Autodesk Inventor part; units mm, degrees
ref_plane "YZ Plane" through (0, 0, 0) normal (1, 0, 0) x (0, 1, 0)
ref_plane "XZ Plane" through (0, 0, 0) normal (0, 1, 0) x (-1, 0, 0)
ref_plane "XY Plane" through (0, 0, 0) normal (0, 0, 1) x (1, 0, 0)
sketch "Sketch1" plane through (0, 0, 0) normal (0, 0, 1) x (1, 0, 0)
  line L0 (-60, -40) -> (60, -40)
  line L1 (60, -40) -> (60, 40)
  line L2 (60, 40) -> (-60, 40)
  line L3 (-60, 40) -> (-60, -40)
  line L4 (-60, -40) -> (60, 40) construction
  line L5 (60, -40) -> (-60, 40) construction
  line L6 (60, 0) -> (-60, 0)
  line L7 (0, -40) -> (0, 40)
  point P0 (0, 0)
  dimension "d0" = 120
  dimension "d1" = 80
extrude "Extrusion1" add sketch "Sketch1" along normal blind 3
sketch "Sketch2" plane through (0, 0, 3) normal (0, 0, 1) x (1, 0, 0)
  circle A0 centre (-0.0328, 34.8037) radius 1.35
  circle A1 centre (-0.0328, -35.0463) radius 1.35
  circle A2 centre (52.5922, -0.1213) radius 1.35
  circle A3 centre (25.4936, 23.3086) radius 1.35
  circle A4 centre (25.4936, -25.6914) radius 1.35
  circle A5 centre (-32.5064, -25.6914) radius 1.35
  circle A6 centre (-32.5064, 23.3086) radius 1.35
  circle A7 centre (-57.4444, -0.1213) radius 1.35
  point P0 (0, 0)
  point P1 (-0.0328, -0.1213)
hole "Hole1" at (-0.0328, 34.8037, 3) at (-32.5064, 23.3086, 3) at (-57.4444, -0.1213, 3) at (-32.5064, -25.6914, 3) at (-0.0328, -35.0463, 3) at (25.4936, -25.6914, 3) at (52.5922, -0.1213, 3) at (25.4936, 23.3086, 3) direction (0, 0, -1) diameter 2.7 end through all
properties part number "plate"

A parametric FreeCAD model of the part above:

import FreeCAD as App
import Part
import Sketcher
Q = App.Units.Quantity


def add_polygon(sketch, points):
    """Adds a closed chain of lines whose ends are joined by coincident constraints."""
    first, n = sketch.GeometryCount, len(points)
    for a, b in zip(points, points[1:] + points[:1]):
        sketch.addGeometry(Part.LineSegment(App.Vector(*a, 0), App.Vector(*b, 0)), False)
    for i in range(n):
        sketch.addConstraint(Sketcher.Constraint("Coincident", first + i, 2, first + (i + 1) % n, 1))

doc = App.newDocument("Part")
body = doc.addObject("PartDesign::Body", "Body")

# Sketch on XY plane
sketch1 = body.newObject("Sketcher::SketchObject", "Sketch")
sketch1.AttachmentSupport = (doc.getObject("XY_Plane"), [""])
sketch1.MapMode = "FlatFace"
add_polygon(sketch1, [(-60, -40), (60, -40), (60, 40), (-60, 40)])  # lines 0-3
sketch1.addConstraint([
    Sketcher.Constraint("Horizontal", 0),
    Sketcher.Constraint("Vertical", 1),
    Sketcher.Constraint("Horizontal", 2),
    Sketcher.Constraint("Vertical", 3),
    Sketcher.Constraint("Symmetric", 0, 2, 2, 2, -1, 1),
    Sketcher.Constraint("DistanceX", 0, 1, 0, 2, Q("120 mm")),
    Sketcher.Constraint("DistanceY", 1, 1, 1, 2, Q("80 mm")),
])
pad1 = body.newObject("PartDesign::Pad", "Pad")
pad1.Profile = sketch1
pad1.Length = 3

# Sketch on XY plane
sketch2 = body.newObject("Sketcher::SketchObject", "Sketch001")
sketch2.AttachmentSupport = (doc.getObject("XY_Plane"), [""])
sketch2.MapMode = "FlatFace"
sketch2.AttachmentOffset = App.Placement(App.Vector(0, 0, 3), App.Rotation())
sketch2.addGeometry([
    Part.Circle(App.Vector(-0.0328, 34.8037, 0), App.Vector(0, 0, 1), 1.35),  # 0
    Part.Circle(App.Vector(-32.5064, 23.3086, 0), App.Vector(0, 0, 1), 1.35),  # 1
    Part.Circle(App.Vector(-57.4444, -0.1213, 0), App.Vector(0, 0, 1), 1.35),  # 2
    Part.Circle(App.Vector(-32.5064, -25.6914, 0), App.Vector(0, 0, 1), 1.35),  # 3
    Part.Circle(App.Vector(-0.0328, -35.0463, 0), App.Vector(0, 0, 1), 1.35),  # 4
    Part.Circle(App.Vector(25.4936, -25.6914, 0), App.Vector(0, 0, 1), 1.35),  # 5
    Part.Circle(App.Vector(52.5922, -0.1213, 0), App.Vector(0, 0, 1), 1.35),  # 6
    Part.Circle(App.Vector(25.4936, 23.3086, 0), App.Vector(0, 0, 1), 1.35),  # 7
], False)
sketch2.addConstraint([
    Sketcher.Constraint("Equal", 0, 1),
    Sketcher.Constraint("Equal", 1, 2),
    Sketcher.Constraint("Equal", 2, 3),
    Sketcher.Constraint("Equal", 3, 4),
    Sketcher.Constraint("Equal", 4, 5),
    Sketcher.Constraint("Equal", 5, 6),
    Sketcher.Constraint("Equal", 6, 7),
    Sketcher.Constraint("Horizontal", 3, 3, 5, 3),
    Sketcher.Constraint("Horizontal", 2, 3, 6, 3),
    Sketcher.Constraint("Horizontal", 1, 3, 7, 3),
    Sketcher.Constraint("Vertical", 1, 3, 3, 3),
    Sketcher.Constraint("Vertical", 0, 3, 4, 3),
    Sketcher.Constraint("Vertical", 5, 3, 7, 3),
    Sketcher.Constraint("Diameter", 0, Q("2.7 mm")),
    Sketcher.Constraint("DistanceY", 3, 3, 1, 3, Q("49 mm")),
    Sketcher.Constraint("DistanceX", 3, 3, 5, 3, Q("58 mm")),
    Sketcher.Constraint("DistanceY", 2, 3, 1, 3, Q("23.43 mm")),
    Sketcher.Constraint("DistanceY", 4, 3, 0, 3, Q("69.85 mm")),
    Sketcher.Constraint("DistanceY", 1, 3, 0, 3, Q("11.495 mm")),
    Sketcher.Constraint("DistanceX", 2, 3, 1, 3, Q("24.938 mm")),
    Sketcher.Constraint("DistanceX", 0, 3, 6, 3, Q("52.625 mm")),
    Sketcher.Constraint("DistanceX", 0, 3, -1, 1, Q("0.0328 mm")),
    Sketcher.Constraint("DistanceY", -1, 1, 0, 3, Q("34.8037 mm")),
    Sketcher.Constraint("DistanceX", 1, 3, -1, 1, Q("32.5064 mm")),
])
doc.recompute()
hole = body.newObject("PartDesign::Hole", "Hole")
hole.Profile = sketch2
hole.ThreadType = "None"
hole.Diameter = 2.7
hole.DepthType = "ThroughAll"

doc.recompute()
